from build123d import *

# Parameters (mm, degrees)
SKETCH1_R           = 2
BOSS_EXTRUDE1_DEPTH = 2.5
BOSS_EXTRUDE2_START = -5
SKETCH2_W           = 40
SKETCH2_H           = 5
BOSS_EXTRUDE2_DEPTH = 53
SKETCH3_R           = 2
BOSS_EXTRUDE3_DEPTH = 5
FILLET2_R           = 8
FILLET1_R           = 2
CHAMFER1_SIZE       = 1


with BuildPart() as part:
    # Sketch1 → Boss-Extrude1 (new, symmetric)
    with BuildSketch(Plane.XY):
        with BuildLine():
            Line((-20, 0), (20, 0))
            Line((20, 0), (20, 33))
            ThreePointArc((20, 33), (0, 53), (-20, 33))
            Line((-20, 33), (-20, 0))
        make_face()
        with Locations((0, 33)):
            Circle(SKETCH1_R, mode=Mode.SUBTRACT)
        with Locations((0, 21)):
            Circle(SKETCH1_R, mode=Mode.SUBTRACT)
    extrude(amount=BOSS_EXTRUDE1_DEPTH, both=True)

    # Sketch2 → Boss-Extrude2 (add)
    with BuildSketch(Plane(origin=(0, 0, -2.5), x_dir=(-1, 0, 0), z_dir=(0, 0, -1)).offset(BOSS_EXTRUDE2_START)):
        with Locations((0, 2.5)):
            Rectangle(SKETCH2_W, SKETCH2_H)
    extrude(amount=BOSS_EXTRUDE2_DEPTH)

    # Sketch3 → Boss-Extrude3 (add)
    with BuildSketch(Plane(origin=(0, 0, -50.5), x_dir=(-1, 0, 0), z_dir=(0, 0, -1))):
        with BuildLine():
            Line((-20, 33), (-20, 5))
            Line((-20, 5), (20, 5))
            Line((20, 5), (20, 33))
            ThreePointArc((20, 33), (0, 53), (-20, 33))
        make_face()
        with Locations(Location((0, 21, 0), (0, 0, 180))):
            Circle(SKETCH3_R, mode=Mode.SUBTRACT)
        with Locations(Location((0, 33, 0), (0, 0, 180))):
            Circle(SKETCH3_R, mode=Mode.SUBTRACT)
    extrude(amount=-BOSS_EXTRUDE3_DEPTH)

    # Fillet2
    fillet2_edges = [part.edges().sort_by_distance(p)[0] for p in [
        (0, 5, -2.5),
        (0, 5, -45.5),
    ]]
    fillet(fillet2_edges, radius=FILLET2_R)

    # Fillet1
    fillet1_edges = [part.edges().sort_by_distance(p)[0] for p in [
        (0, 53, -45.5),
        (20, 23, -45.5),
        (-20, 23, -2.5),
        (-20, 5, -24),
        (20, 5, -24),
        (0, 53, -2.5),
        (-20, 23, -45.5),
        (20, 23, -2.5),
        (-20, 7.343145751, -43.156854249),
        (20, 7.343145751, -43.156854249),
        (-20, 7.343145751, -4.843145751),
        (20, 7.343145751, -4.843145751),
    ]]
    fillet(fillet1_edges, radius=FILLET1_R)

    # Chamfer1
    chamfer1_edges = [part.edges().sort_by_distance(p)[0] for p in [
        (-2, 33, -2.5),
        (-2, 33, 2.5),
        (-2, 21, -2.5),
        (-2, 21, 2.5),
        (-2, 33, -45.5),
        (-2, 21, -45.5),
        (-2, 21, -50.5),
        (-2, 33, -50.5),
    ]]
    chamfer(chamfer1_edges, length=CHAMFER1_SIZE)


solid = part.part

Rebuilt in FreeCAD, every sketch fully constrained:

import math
import FreeCAD as App
import Part
import Sketcher


def edges_at(feature, points):
    """Names of the edges that pass closest to the given points."""
    edges = feature.Shape.Edges
    near = lambda p: min(range(len(edges)), key=lambda i: edges[i].distToShape(Part.Vertex(*p))[0])
    return sorted({f"Edge{near(p) + 1}" for p in points})


def add_polygon(sketch, points):
    """Adds a closed chain of lines whose ends are joined by coincident constraints."""
    first, n = sketch.GeometryCount, len(points)
    for a, b in zip(points, points[1:] + points[:1]):
        sketch.addGeometry(Part.LineSegment(App.Vector(*a, 0), App.Vector(*b, 0)), False)
    for i in range(n):
        sketch.addConstraint(Sketcher.Constraint("Coincident", first + i, 2, first + (i + 1) % n, 1))

doc = App.newDocument("Part")
params = doc.addObject("Spreadsheet::Sheet", "Params")
for row, (alias, value) in enumerate([
    ("sketch1_diameter", "4 mm"),
    ("sketch1_radius", "20 mm"),
    ("sketch1_height", "33 mm"),
    ("pad1_length", "5 mm"),
    ("sketch2_width", "40 mm"),
    ("sketch2_height", "5 mm"),
    ("pad2_length", "53 mm"),
    ("sketch3_diameter", "4 mm"),
    ("sketch3_radius", "20 mm"),
    ("sketch3_height", "28 mm"),
    ("pad3_length", "5 mm"),
    ("fillet_radius", "8 mm"),
    ("fillet2_radius", "2 mm"),
    ("chamfer_size", "1 mm"),
], start=1):
    params.set(f"A{row}", alias)
    params.set(f"B{row}", "=" + value)
    params.setAlias(f"B{row}", alias)

body = doc.addObject("PartDesign::Body", "Body")

# Sketch on XY plane
sketch1 = body.newObject("Sketcher::SketchObject", "Sketch")
sketch1.AttachmentSupport = (doc.getObject("XY_Plane"), [""])
sketch1.MapMode = "FlatFace"
sketch1.addGeometry(Part.LineSegment(App.Vector(-20, 0, 0), App.Vector(20, 0, 0)), False)
sketch1.addGeometry(Part.LineSegment(App.Vector(20, 0, 0), App.Vector(20, 33, 0)), False)
sketch1.addGeometry(Part.ArcOfCircle(Part.Circle(App.Vector(0, 33, 0), App.Vector(0, 0, 1), 20), math.radians(0), math.radians(180)), False)
sketch1.addGeometry(Part.LineSegment(App.Vector(-20, 33, 0), App.Vector(-20, 0, 0)), False)
sketch1.addGeometry(Part.Circle(App.Vector(0, 21, 0), App.Vector(0, 0, 1), 2), False)
sketch1.addGeometry(Part.Circle(App.Vector(0, 33, 0), App.Vector(0, 0, 1), 2), False)
sketch1.addConstraint(Sketcher.Constraint("Coincident", 0, 2, 1, 1))
sketch1.addConstraint(Sketcher.Constraint("Tangent", 1, 2, 2, 1))
sketch1.addConstraint(Sketcher.Constraint("Tangent", 2, 2, 3, 1))
sketch1.addConstraint(Sketcher.Constraint("Coincident", 3, 2, 0, 1))
sketch1.addConstraint(Sketcher.Constraint("Horizontal", 0))
sketch1.addConstraint(Sketcher.Constraint("Vertical", 1))
sketch1.addConstraint(Sketcher.Constraint("Vertical", 3))
sketch1.addConstraint(Sketcher.Constraint("Coincident", 5, 3, 2, 3))
sketch1.addConstraint(Sketcher.Constraint("Equal", 4, 5))
sketch1.addConstraint(Sketcher.Constraint("Symmetric", 0, 2, 3, 2, -1, 1))
sketch1.addConstraint(Sketcher.Constraint("PointOnObject", 4, 3, -2))
sketch1.addConstraint(Sketcher.Constraint("Diameter", 4, 4.0))
sketch1.addConstraint(Sketcher.Constraint("Radius", 2, 20.0))
sketch1.addConstraint(Sketcher.Constraint("DistanceY", 1, 1, 1, 2, 33.0))
sketch1.addConstraint(Sketcher.Constraint("DistanceY", -1, 1, 4, 3, 21.0))
sketch1.setExpression("Constraints[11]", "Params.sketch1_diameter")
sketch1.setExpression("Constraints[12]", "Params.sketch1_radius")
sketch1.setExpression("Constraints[13]", "Params.sketch1_height")
pad1 = body.newObject("PartDesign::Pad", "Pad")
pad1.Profile = sketch1
pad1.setExpression("Length", "Params.pad1_length")
pad1.Midplane = True

# Sketch on XY plane
sketch2 = body.newObject("Sketcher::SketchObject", "Sketch001")
sketch2.AttachmentSupport = (doc.getObject("XY_Plane"), [""])
sketch2.MapMode = "FlatFace"
sketch2.AttachmentOffset = App.Placement(App.Vector(0, 0, 2.5), App.Rotation())
add_polygon(sketch2, [(20, 5), (20, 0), (-20, 0), (-20, 5)])  # lines 0-3
sketch2.addConstraint(Sketcher.Constraint("Vertical", 0))
sketch2.addConstraint(Sketcher.Constraint("Horizontal", 1))
sketch2.addConstraint(Sketcher.Constraint("Vertical", 2))
sketch2.addConstraint(Sketcher.Constraint("Horizontal", 3))
sketch2.addConstraint(Sketcher.Constraint("Symmetric", 0, 2, 1, 2, -1, 1))
sketch2.addConstraint(Sketcher.Constraint("DistanceX", 1, 2, 1, 1, 40.0))
sketch2.addConstraint(Sketcher.Constraint("DistanceY", 0, 2, 0, 1, 5.0))
sketch2.setExpression("Constraints[9]", "Params.sketch2_width")
sketch2.setExpression("Constraints[10]", "Params.sketch2_height")
pad2 = body.newObject("PartDesign::Pad", "Pad001")
pad2.Profile = sketch2
pad2.setExpression("Length", "Params.pad2_length")
pad2.Reversed = True

# Sketch on XY plane
sketch3 = body.newObject("Sketcher::SketchObject", "Sketch002")
sketch3.AttachmentSupport = (doc.getObject("XY_Plane"), [""])
sketch3.MapMode = "FlatFace"
sketch3.AttachmentOffset = App.Placement(App.Vector(0, 0, -50.5), App.Rotation())
sketch3.addGeometry(Part.LineSegment(App.Vector(20, 33, 0), App.Vector(20, 5, 0)), False)
sketch3.addGeometry(Part.LineSegment(App.Vector(20, 5, 0), App.Vector(-20, 5, 0)), False)
sketch3.addGeometry(Part.LineSegment(App.Vector(-20, 5, 0), App.Vector(-20, 33, 0)), False)
sketch3.addGeometry(Part.ArcOfCircle(Part.Circle(App.Vector(0, 33, 0), App.Vector(0, 0, 1), 20), math.radians(0), math.radians(180)), False)
sketch3.addGeometry(Part.Circle(App.Vector(0, 21, 0), App.Vector(0, 0, 1), 2), False)
sketch3.addGeometry(Part.Circle(App.Vector(0, 33, 0), App.Vector(0, 0, 1), 2), False)
sketch3.addConstraint(Sketcher.Constraint("Coincident", 0, 2, 1, 1))
sketch3.addConstraint(Sketcher.Constraint("Coincident", 1, 2, 2, 1))
sketch3.addConstraint(Sketcher.Constraint("Tangent", 2, 2, 3, 2))
sketch3.addConstraint(Sketcher.Constraint("Tangent", 3, 1, 0, 1))
sketch3.addConstraint(Sketcher.Constraint("Vertical", 0))
sketch3.addConstraint(Sketcher.Constraint("Horizontal", 1))
sketch3.addConstraint(Sketcher.Constraint("Vertical", 2))
sketch3.addConstraint(Sketcher.Constraint("Coincident", 5, 3, 3, 3))
sketch3.addConstraint(Sketcher.Constraint("Equal", 4, 5))
sketch3.addConstraint(Sketcher.Constraint("PointOnObject", 3, 3, -2))
sketch3.addConstraint(Sketcher.Constraint("PointOnObject", 4, 3, -2))
sketch3.addConstraint(Sketcher.Constraint("Diameter", 4, 4.0))
sketch3.addConstraint(Sketcher.Constraint("Radius", 3, 20.0))
sketch3.addConstraint(Sketcher.Constraint("DistanceY", 0, 2, 0, 1, 28.0))
sketch3.addConstraint(Sketcher.Constraint("DistanceY", -1, 1, 3, 3, 33.0))
sketch3.addConstraint(Sketcher.Constraint("DistanceY", -1, 1, 4, 3, 21.0))
sketch3.setExpression("Constraints[11]", "Params.sketch3_diameter")
sketch3.setExpression("Constraints[12]", "Params.sketch3_radius")
sketch3.setExpression("Constraints[13]", "Params.sketch3_height")
pad3 = body.newObject("PartDesign::Pad", "Pad002")
pad3.Profile = sketch3
pad3.setExpression("Length", "Params.pad3_length")
doc.recompute()

fillet = body.newObject("PartDesign::Fillet", "Fillet")
fillet.Base = (pad3, edges_at(pad3, [(0, 5, -2.5), (0, 5, -45.5)]))
fillet.setExpression("Radius", "Params.fillet_radius")
doc.recompute()

fillet2 = body.newObject("PartDesign::Fillet", "Fillet001")
fillet2.Base = (fillet, edges_at(fillet, [
    (0, 53, -45.5),
    (20, 23, -45.5),
    (-20, 23, -2.5),
    (-20, 5, -24),
    (20, 5, -24),
    (0, 53, -2.5),
    (-20, 23, -45.5),
    (20, 23, -2.5),
    (-20, 7.343, -43.157),
    (20, 7.343, -43.157),
    (-20, 7.343, -4.843),
    (20, 7.343, -4.843),
]))
fillet2.setExpression("Radius", "Params.fillet2_radius")
doc.recompute()

chamfer = body.newObject("PartDesign::Chamfer", "Chamfer")
chamfer.Base = (fillet2, edges_at(fillet2, [
    (-2, 33, -2.5),
    (-2, 33, 2.5),
    (-2, 21, -2.5),
    (-2, 21, 2.5),
    (-2, 33, -45.5),
    (-2, 21, -45.5),
    (-2, 21, -50.5),
    (-2, 33, -50.5),
]))
chamfer.setExpression("Size", "Params.chamfer_size")

doc.recompute()
